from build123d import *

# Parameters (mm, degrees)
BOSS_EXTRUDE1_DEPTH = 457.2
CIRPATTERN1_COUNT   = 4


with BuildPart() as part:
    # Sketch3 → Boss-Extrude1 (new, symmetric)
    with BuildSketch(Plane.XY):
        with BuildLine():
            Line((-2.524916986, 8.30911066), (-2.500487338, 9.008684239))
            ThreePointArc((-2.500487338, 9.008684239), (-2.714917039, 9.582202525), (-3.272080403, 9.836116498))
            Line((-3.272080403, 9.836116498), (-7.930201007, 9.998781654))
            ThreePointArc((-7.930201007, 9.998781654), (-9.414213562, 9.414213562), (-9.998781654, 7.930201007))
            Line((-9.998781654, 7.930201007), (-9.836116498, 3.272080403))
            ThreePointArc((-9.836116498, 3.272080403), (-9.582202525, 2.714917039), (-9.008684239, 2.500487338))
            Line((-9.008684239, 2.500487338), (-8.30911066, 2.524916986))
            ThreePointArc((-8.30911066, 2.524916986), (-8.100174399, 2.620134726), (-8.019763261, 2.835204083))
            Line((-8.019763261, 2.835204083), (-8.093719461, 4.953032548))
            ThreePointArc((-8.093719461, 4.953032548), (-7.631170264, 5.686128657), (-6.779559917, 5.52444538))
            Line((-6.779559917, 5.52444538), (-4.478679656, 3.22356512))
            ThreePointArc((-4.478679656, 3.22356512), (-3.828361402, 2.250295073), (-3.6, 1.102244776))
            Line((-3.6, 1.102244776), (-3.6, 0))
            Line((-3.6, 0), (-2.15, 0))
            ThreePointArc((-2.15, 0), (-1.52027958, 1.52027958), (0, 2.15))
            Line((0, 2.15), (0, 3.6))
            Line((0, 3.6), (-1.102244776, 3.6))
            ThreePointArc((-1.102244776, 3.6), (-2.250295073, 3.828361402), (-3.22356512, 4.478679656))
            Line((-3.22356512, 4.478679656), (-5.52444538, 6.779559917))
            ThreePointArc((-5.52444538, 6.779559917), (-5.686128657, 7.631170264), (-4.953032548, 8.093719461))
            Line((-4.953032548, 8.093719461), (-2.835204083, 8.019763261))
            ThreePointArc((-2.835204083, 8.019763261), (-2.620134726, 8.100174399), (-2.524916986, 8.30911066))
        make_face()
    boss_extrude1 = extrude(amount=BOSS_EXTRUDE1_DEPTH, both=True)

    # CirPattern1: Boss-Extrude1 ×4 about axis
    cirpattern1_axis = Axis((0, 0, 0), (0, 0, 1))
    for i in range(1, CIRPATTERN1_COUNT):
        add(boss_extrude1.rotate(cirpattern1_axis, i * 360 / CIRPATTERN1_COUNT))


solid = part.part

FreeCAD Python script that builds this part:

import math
import FreeCAD as App
import Part
import Sketcher
Q = App.Units.Quantity

doc = App.newDocument("Part")
body = doc.addObject("PartDesign::Body", "Body")

sketch1 = body.newObject("Sketcher::SketchObject", "Sketch")
sketch1.AttachmentSupport = (doc.getObject("XY_Plane"), [""])
sketch1.MapMode = "FlatFace"
sketch1.addGeometry([
    Part.LineSegment(App.Vector(-2.524917, 8.309111, 0), App.Vector(-2.500487, 9.008684, 0)),
    Part.ArcOfCircle(Part.Circle(App.Vector(-3.3, 9.036604, 0), App.Vector(0, 0, 1), 0.8), math.radians(-2), math.radians(88)),
    Part.LineSegment(App.Vector(-3.27208, 9.836116, 0), App.Vector(-7.930201, 9.998782, 0)),
    Part.ArcOfCircle(Part.Circle(App.Vector(-8, 8, 0), App.Vector(0, 0, 1), 2), math.radians(88), math.radians(182)),
    Part.LineSegment(App.Vector(-9.998782, 7.930201, 0), App.Vector(-9.836116, 3.27208, 0)),
    Part.ArcOfCircle(Part.Circle(App.Vector(-9.036604, 3.3, 0), App.Vector(0, 0, 1), 0.8), math.radians(-178), math.radians(-88)),
    Part.LineSegment(App.Vector(-9.008684, 2.500487, 0), App.Vector(-8.309111, 2.524917, 0)),
    Part.ArcOfCircle(Part.Circle(App.Vector(-8.319581, 2.824734, 0), App.Vector(0, 0, 1), 0.3), math.radians(-88), math.radians(2)),
    Part.LineSegment(App.Vector(-8.019763, 2.835204, 0), App.Vector(-8.093719, 4.953033, 0)),
    Part.ArcOfCircle(Part.Circle(App.Vector(-7.324097, 4.979908, 0), App.Vector(0, 0, 1), 0.770092), math.radians(45), math.radians(182)),
    Part.LineSegment(App.Vector(-6.77956, 5.524445, 0), App.Vector(-4.47868, 3.223565, 0)),
    Part.ArcOfCircle(Part.Circle(App.Vector(-6.6, 1.102245, 0), App.Vector(0, 0, 1), 3), math.radians(0), math.radians(45)),
    Part.LineSegment(App.Vector(-3.6, 1.102245, 0), App.Vector(-3.6, 0, 0)),
    Part.LineSegment(App.Vector(-3.6, 0, 0), App.Vector(-2.15, 0, 0)),
    Part.ArcOfCircle(Part.Circle(App.Vector(0, 0, 0), App.Vector(0, 0, 1), 2.15), math.radians(90), math.radians(180)),
    Part.LineSegment(App.Vector(0, 2.15, 0), App.Vector(0, 3.6, 0)),
    Part.LineSegment(App.Vector(0, 3.6, 0), App.Vector(-1.102245, 3.6, 0)),
    Part.ArcOfCircle(Part.Circle(App.Vector(-1.102245, 6.6, 0), App.Vector(0, 0, 1), 3), math.radians(-135), math.radians(-90)),
    Part.LineSegment(App.Vector(-3.223565, 4.47868, 0), App.Vector(-5.524445, 6.77956, 0)),
    Part.ArcOfCircle(Part.Circle(App.Vector(-4.979908, 7.324097, 0), App.Vector(0, 0, 1), 0.770092), math.radians(88), math.radians(225)),
    Part.LineSegment(App.Vector(-4.953033, 8.093719, 0), App.Vector(-2.835204, 8.019763, 0)),
    Part.ArcOfCircle(Part.Circle(App.Vector(-2.824734, 8.319581, 0), App.Vector(0, 0, 1), 0.3), math.radians(-92), math.radians(-2)),
], False)
sketch1.addConstraint([
    Sketcher.Constraint("Tangent", 0, 2, 1, 1),
    Sketcher.Constraint("Tangent", 1, 2, 2, 1),
    Sketcher.Constraint("Tangent", 2, 2, 3, 1),
    Sketcher.Constraint("Tangent", 3, 2, 4, 1),
    Sketcher.Constraint("Tangent", 4, 2, 5, 1),
    Sketcher.Constraint("Tangent", 5, 2, 6, 1),
    Sketcher.Constraint("Tangent", 6, 2, 7, 1),
    Sketcher.Constraint("Tangent", 7, 2, 8, 1),
    Sketcher.Constraint("Tangent", 8, 2, 9, 2),
    Sketcher.Constraint("Tangent", 9, 1, 10, 1),
    Sketcher.Constraint("Tangent", 10, 2, 11, 2),
    Sketcher.Constraint("Tangent", 11, 1, 12, 1),
    Sketcher.Constraint("Coincident", 12, 2, 13, 1),
    Sketcher.Constraint("Coincident", 13, 2, 14, 2),
    Sketcher.Constraint("Coincident", 14, 1, 15, 1),
    Sketcher.Constraint("Coincident", 15, 2, 16, 1),
    Sketcher.Constraint("Tangent", 16, 2, 17, 2),
    Sketcher.Constraint("Tangent", 17, 1, 18, 1),
    Sketcher.Constraint("Tangent", 18, 2, 19, 2),
    Sketcher.Constraint("Tangent", 19, 1, 20, 1),
    Sketcher.Constraint("Tangent", 20, 2, 21, 1),
    Sketcher.Constraint("Tangent", 21, 2, 0, 1),
    Sketcher.Constraint("Vertical", 12),
    Sketcher.Constraint("Horizontal", 13),
    Sketcher.Constraint("Vertical", 15),
    Sketcher.Constraint("Horizontal", 16),
    Sketcher.Constraint("Coincident", 14, 3, -1, 1),
    Sketcher.Constraint("Equal", 1, 5),
    Sketcher.Constraint("Equal", 11, 17),
    Sketcher.Constraint("Equal", 9, 19),
    Sketcher.Constraint("Equal", 7, 21),
    Sketcher.Constraint("PointOnObject", 12, 2, -1),
    Sketcher.Constraint("PointOnObject", 14, 1, -2),
    Sketcher.Constraint("Perpendicular", 0, 2),
    Sketcher.Constraint("Perpendicular", 4, 6),
    Sketcher.Constraint("Perpendicular", 6, 8),
    Sketcher.Constraint("Parallel", 10, 18),
    Sketcher.Constraint("Parallel", 2, 20),
    Sketcher.Constraint("Equal", 16, 12),
    Sketcher.Constraint("Equal", 13, 15),
    Sketcher.Constraint("Equal", 2, 4),
    Sketcher.Constraint("Equal", 0, 6),
    Sketcher.Constraint("Equal", 10, 18),
    Sketcher.Constraint("Equal", 8, 20),
    Sketcher.Constraint("Radius", 3, 2.0),
    Sketcher.Constraint("Radius", 11, 3.0),
    Sketcher.Constraint("Radius", 1, 0.8),
    Sketcher.Constraint("Radius", 7, 0.3),
    Sketcher.Constraint("Angle", 0, Q("88 deg")),
    Sketcher.Constraint("Angle", 4, Q("-88 deg")),
    Sketcher.Constraint("Radius", 14, 2.15),
    Sketcher.Constraint("DistanceX", 3, 3, -1, 1, 8.0),
    Sketcher.Constraint("Distance", 0, 0.7),
    Sketcher.Constraint("DistanceX", 13, 1, 13, 2, 1.45),
    Sketcher.Constraint("DistanceX", 1, 3, -1, 1, 3.3),
    Sketcher.Constraint("Radius", 9, 0.770092),
    Sketcher.Constraint("DistanceY", 7, 3, 8, 2, 2.128298),
])
pad1 = body.newObject("PartDesign::Pad", "Pad")
pad1.Profile = sketch1
pad1.Length = 914.4
pad1.Midplane = True
doc.recompute()

polarpattern = body.newObject("PartDesign::PolarPattern", "PolarPattern")
polarpattern.Originals = [pad1]
polarpattern.Axis = (doc.getObject("Z_Axis"), [""])
polarpattern.Angle = 360
polarpattern.Occurrences = 4
body.Tip = polarpattern

doc.recompute()
